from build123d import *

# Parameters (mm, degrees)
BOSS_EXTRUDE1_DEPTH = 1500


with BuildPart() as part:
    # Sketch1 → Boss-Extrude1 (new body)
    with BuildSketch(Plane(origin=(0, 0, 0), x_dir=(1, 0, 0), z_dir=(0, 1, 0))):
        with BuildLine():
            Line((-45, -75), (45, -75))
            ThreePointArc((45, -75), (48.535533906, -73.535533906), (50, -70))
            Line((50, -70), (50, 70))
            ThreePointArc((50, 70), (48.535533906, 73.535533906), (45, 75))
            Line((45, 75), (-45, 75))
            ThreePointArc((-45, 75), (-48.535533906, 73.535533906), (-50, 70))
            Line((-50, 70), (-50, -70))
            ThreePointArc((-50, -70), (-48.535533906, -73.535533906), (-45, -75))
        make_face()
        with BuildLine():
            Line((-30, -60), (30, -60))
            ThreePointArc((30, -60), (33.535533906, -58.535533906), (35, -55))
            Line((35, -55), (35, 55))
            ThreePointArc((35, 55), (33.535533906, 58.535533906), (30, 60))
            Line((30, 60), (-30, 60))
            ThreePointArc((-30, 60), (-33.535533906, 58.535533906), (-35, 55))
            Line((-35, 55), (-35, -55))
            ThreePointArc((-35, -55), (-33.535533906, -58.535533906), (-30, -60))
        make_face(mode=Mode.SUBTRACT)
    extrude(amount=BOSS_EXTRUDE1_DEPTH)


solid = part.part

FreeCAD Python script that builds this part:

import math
import FreeCAD as App
import Part
import Sketcher
from FreeCAD import Vector

doc = App.newDocument("Part")
body = doc.addObject("PartDesign::Body", "Body")

# Sketch on XZ plane
sketch1 = body.newObject("Sketcher::SketchObject", "Sketch")
sketch1.AttachmentSupport = (doc.getObject("XZ_Plane"), [""])
sketch1.MapMode = "FlatFace"
sketch1.addGeometry([
    Part.LineSegment(Vector(-45, 75, 0), Vector(45, 75, 0)),  # 0
    Part.ArcOfCircle(Part.Circle(Vector(45, 70, 0), Vector(0, 0, 1), 5), math.radians(0), math.radians(90)),  # 1
    Part.LineSegment(Vector(50, 70, 0), Vector(50, -70, 0)),  # 2
    Part.ArcOfCircle(Part.Circle(Vector(45, -70, 0), Vector(0, 0, 1), 5), math.radians(-90), math.radians(0)),  # 3
    Part.LineSegment(Vector(45, -75, 0), Vector(-45, -75, 0)),  # 4
    Part.ArcOfCircle(Part.Circle(Vector(-45, -70, 0), Vector(0, 0, 1), 5), math.radians(180), math.radians(270)),  # 5
    Part.LineSegment(Vector(-50, -70, 0), Vector(-50, 70, 0)),  # 6
    Part.ArcOfCircle(Part.Circle(Vector(-45, 70, 0), Vector(0, 0, 1), 5), math.radians(90), math.radians(180)),  # 7
    Part.LineSegment(Vector(30, 60, 0), Vector(-30, 60, 0)),  # 8
    Part.ArcOfCircle(Part.Circle(Vector(-30, 55, 0), Vector(0, 0, 1), 5), math.radians(90), math.radians(180)),  # 9
    Part.LineSegment(Vector(-35, 55, 0), Vector(-35, -55, 0)),  # 10
    Part.ArcOfCircle(Part.Circle(Vector(-30, -55, 0), Vector(0, 0, 1), 5), math.radians(180), math.radians(270)),  # 11
    Part.LineSegment(Vector(-30, -60, 0), Vector(30, -60, 0)),  # 12
    Part.ArcOfCircle(Part.Circle(Vector(30, -55, 0), Vector(0, 0, 1), 5), math.radians(-90), math.radians(0)),  # 13
    Part.LineSegment(Vector(35, -55, 0), Vector(35, 55, 0)),  # 14
    Part.ArcOfCircle(Part.Circle(Vector(30, 55, 0), Vector(0, 0, 1), 5), math.radians(0), math.radians(90)),  # 15
], False)
sketch1.addConstraint([
    Sketcher.Constraint("Tangent", 0, 2, 1, 2),
    Sketcher.Constraint("Tangent", 1, 1, 2, 1),
    Sketcher.Constraint("Tangent", 2, 2, 3, 2),
    Sketcher.Constraint("Tangent", 3, 1, 4, 1),
    Sketcher.Constraint("Tangent", 4, 2, 5, 2),
    Sketcher.Constraint("Tangent", 5, 1, 6, 1),
    Sketcher.Constraint("Tangent", 6, 2, 7, 2),
    Sketcher.Constraint("Tangent", 7, 1, 0, 1),
    Sketcher.Constraint("Tangent", 8, 2, 9, 1),
    Sketcher.Constraint("Tangent", 9, 2, 10, 1),
    Sketcher.Constraint("Tangent", 10, 2, 11, 1),
    Sketcher.Constraint("Tangent", 11, 2, 12, 1),
    Sketcher.Constraint("Tangent", 12, 2, 13, 1),
    Sketcher.Constraint("Tangent", 13, 2, 14, 1),
    Sketcher.Constraint("Tangent", 14, 2, 15, 1),
    Sketcher.Constraint("Tangent", 15, 2, 8, 1),
    Sketcher.Constraint("Horizontal", 0),
    Sketcher.Constraint("Vertical", 2),
    Sketcher.Constraint("Horizontal", 4),
    Sketcher.Constraint("Vertical", 6),
    Sketcher.Constraint("Horizontal", 8),
    Sketcher.Constraint("Vertical", 10),
    Sketcher.Constraint("Horizontal", 12),
    Sketcher.Constraint("Vertical", 14),
    Sketcher.Constraint("Equal", 1, 3),
    Sketcher.Constraint("Equal", 3, 5),
    Sketcher.Constraint("Equal", 5, 7),
    Sketcher.Constraint("Equal", 7, 9),
    Sketcher.Constraint("Equal", 9, 11),
    Sketcher.Constraint("Equal", 11, 13),
    Sketcher.Constraint("Equal", 13, 15),
    Sketcher.Constraint("Symmetric", 1, 3, 5, 3, -1, 1),
    Sketcher.Constraint("Symmetric", 9, 3, 13, 3, -1, 1),
    Sketcher.Constraint("Radius", 1, 5.0),
    Sketcher.Constraint("DistanceX", 0, 1, 0, 2, 90.0),
    Sketcher.Constraint("DistanceX", 8, 2, 8, 1, 60.0),
    Sketcher.Constraint("DistanceY", 2, 2, 2, 1, 140.0),
    Sketcher.Constraint("DistanceY", 10, 2, 10, 1, 110.0),
])
pad1 = body.newObject("PartDesign::Pad", "Pad")
pad1.Profile = sketch1
pad1.Length = 1500
pad1.Reversed = True

doc.recompute()
